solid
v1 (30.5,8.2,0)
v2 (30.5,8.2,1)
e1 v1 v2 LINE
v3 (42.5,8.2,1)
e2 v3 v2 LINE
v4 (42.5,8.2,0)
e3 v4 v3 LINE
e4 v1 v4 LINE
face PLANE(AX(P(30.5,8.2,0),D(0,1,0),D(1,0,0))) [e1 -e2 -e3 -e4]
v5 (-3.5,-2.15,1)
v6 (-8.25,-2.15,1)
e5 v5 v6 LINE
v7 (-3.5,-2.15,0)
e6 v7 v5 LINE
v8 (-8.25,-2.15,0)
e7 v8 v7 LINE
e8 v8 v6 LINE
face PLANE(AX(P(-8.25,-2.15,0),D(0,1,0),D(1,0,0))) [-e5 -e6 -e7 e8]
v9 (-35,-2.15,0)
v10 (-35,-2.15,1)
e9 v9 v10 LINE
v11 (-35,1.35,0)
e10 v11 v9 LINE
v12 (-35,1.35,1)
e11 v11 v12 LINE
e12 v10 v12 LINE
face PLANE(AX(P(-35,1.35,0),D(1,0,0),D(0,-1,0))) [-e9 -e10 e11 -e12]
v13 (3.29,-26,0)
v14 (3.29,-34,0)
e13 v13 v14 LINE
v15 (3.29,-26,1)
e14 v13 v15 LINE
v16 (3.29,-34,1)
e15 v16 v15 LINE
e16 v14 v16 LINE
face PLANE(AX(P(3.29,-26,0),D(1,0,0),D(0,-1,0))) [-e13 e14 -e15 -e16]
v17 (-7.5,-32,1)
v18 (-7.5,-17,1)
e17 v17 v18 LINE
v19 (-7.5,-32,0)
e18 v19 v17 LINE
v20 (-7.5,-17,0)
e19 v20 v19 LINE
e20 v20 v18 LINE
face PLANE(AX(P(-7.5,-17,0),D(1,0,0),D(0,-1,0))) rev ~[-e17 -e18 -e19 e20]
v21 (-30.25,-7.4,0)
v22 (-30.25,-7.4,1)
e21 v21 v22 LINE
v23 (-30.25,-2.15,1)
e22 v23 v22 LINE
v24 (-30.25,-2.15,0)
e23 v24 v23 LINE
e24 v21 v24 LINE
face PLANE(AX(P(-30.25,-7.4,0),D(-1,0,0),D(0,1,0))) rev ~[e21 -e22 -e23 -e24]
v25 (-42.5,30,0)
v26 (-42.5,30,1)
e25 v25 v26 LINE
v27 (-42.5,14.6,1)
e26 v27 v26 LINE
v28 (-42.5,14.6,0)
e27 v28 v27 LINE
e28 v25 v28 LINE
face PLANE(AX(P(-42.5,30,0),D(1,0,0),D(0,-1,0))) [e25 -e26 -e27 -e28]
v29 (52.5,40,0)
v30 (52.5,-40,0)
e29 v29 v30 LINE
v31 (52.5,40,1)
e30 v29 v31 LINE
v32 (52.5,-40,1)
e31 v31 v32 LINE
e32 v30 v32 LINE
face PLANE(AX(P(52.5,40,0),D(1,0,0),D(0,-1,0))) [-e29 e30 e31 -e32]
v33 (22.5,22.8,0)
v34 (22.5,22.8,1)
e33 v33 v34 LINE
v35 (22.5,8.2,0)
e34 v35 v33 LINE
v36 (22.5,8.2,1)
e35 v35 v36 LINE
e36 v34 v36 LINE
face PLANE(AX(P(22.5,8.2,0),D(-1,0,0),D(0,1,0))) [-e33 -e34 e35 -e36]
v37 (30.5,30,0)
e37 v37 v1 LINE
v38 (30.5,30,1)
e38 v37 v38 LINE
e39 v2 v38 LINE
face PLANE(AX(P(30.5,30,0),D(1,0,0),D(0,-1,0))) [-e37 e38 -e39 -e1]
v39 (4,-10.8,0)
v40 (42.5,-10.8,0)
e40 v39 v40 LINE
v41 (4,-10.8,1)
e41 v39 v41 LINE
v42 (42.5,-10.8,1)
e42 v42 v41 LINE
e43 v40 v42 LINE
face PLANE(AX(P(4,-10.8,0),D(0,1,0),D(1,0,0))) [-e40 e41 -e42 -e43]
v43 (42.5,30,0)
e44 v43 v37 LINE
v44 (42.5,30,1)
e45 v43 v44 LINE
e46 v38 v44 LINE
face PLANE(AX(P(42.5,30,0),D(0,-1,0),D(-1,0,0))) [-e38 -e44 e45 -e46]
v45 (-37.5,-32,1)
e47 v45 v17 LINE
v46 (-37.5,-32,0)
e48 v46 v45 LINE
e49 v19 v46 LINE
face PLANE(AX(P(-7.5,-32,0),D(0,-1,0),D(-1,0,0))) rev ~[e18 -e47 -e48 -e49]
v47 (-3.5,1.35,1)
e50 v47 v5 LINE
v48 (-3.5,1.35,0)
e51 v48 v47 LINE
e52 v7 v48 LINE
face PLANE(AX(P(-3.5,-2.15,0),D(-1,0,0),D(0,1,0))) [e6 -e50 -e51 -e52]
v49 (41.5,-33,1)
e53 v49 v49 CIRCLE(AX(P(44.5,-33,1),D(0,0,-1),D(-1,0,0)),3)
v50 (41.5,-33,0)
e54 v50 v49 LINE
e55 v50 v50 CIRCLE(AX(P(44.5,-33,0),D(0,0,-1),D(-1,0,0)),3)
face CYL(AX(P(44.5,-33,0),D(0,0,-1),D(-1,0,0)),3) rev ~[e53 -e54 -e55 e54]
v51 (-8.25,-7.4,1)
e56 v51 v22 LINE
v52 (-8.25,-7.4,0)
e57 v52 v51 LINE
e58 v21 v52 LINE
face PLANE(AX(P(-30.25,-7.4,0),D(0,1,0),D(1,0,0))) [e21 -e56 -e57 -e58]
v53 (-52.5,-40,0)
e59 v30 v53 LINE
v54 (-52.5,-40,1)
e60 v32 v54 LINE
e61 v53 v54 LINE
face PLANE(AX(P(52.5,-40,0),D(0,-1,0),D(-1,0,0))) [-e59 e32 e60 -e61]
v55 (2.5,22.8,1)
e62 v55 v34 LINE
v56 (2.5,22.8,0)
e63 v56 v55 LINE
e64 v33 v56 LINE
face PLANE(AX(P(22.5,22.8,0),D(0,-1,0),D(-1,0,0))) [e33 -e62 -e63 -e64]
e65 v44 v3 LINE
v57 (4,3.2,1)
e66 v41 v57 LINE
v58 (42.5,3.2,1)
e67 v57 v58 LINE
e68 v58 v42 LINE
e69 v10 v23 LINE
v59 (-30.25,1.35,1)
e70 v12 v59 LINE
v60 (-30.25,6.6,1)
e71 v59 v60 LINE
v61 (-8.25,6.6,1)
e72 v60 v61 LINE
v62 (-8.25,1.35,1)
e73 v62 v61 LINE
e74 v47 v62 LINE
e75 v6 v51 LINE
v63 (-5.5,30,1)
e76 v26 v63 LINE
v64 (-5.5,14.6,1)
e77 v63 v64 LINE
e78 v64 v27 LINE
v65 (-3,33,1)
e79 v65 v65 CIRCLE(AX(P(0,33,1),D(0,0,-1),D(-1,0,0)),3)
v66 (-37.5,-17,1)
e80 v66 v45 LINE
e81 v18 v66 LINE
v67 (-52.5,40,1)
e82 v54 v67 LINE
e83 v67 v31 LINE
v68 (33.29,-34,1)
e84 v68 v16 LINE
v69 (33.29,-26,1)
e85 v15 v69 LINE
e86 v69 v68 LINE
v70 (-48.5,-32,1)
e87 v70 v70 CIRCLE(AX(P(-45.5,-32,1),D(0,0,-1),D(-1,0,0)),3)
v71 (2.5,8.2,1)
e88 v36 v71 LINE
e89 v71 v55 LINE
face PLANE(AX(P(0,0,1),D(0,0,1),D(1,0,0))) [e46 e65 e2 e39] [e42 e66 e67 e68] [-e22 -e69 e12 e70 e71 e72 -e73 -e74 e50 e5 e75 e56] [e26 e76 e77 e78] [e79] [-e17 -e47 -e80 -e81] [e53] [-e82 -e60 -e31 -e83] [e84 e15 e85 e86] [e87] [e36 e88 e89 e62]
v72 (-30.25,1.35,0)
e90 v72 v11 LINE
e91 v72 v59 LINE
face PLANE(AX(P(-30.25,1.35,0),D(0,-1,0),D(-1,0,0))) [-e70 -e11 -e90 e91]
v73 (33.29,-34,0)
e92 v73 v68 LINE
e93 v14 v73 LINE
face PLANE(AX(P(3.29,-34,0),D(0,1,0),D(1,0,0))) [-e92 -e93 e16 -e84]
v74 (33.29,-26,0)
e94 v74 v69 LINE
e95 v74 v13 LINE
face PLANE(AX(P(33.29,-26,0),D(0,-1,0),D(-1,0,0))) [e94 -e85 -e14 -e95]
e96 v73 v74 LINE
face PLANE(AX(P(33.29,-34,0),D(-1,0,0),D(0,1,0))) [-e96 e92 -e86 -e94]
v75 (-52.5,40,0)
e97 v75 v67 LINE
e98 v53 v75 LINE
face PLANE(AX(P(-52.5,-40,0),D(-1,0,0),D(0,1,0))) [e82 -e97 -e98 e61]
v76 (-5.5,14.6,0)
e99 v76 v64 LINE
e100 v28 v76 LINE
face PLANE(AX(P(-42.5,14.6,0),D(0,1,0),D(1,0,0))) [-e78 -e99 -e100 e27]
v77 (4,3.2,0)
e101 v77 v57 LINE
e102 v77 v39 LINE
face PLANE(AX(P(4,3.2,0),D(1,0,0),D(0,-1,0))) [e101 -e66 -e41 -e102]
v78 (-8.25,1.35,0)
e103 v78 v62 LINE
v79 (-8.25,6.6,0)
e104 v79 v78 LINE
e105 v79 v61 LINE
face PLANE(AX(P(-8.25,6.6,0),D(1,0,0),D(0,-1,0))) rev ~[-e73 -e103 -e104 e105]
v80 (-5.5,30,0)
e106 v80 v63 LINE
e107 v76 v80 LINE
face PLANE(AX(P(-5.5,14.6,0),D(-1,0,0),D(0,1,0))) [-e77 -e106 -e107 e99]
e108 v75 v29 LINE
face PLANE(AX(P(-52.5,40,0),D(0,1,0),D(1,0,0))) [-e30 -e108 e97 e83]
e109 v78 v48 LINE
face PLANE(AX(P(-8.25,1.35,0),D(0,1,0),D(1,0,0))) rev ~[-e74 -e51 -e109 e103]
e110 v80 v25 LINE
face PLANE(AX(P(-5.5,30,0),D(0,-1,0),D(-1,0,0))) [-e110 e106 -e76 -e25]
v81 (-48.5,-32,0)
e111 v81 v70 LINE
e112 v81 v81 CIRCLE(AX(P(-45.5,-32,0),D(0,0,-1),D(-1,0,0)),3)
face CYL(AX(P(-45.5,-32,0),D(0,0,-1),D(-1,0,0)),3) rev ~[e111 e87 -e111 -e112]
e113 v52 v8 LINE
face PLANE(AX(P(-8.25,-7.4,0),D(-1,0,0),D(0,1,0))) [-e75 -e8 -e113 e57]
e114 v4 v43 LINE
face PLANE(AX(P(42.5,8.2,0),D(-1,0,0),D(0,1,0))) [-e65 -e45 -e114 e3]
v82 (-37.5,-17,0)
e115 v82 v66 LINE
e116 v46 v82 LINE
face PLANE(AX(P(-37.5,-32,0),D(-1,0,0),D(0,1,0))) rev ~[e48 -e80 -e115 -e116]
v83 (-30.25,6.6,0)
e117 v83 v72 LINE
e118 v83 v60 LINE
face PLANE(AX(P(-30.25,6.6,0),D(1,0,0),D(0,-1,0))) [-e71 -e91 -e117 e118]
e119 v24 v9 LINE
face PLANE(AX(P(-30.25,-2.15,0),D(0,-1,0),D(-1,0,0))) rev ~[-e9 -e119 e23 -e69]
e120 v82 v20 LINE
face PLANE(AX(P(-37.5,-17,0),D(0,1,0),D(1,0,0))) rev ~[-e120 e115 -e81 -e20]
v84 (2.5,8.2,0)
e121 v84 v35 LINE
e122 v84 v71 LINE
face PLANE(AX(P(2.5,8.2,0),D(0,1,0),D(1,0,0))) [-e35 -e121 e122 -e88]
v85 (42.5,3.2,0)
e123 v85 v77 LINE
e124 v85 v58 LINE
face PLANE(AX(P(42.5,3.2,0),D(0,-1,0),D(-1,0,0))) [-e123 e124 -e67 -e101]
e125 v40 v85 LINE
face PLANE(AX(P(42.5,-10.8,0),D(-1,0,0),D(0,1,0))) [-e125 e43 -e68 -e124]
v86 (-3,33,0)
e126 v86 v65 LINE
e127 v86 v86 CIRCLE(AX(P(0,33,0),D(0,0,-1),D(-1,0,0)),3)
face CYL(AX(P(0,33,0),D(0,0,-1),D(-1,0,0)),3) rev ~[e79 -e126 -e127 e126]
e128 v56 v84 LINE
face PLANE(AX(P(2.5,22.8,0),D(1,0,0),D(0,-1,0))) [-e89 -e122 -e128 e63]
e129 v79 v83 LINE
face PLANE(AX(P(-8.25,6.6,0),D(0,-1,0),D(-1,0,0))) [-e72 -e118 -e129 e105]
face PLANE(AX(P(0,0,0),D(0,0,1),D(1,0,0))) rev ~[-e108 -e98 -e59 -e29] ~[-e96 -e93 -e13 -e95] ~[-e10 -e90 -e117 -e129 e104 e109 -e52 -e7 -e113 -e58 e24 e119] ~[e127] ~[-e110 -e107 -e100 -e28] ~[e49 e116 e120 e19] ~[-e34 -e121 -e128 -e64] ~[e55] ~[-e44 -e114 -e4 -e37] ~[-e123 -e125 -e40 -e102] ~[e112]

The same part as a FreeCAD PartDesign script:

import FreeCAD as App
import Part
import Sketcher
Q = App.Units.Quantity


def add_polygon(sketch, points):
    """Adds a closed chain of lines whose ends are joined by coincident constraints."""
    first, n = sketch.GeometryCount, len(points)
    for a, b in zip(points, points[1:] + points[:1]):
        sketch.addGeometry(Part.LineSegment(App.Vector(*a, 0), App.Vector(*b, 0)), False)
    for i in range(n):
        sketch.addConstraint(Sketcher.Constraint("Coincident", first + i, 2, first + (i + 1) % n, 1))

doc = App.newDocument("Part")
params = doc.addObject("Spreadsheet::Sheet", "Params")
for row, (alias, value) in enumerate([
    ("sketch1_width", "105 mm"),
    ("sketch1_height", "80 mm"),
    ("pad1_length", "1 mm"),
    ("sketch2_width", "22 mm"),
    ("sketch2_width2", "20 mm"),
    ("sketch2_width3", "30 mm"),
    ("sketch2_height", "14 mm"),
    ("sketch2_height2", "8 mm"),
    ("pocket1_length", "10 mm"),
    ("sketch3_width", "37 mm"),
    ("sketch3_height", "15.4 mm"),
    ("pocket2_length", "10 mm"),
    ("sketch4_diameter", "6 mm"),
    ("pocket3_length", "10 mm"),
], start=1):
    params.set(f"A{row}", alias)
    params.set(f"B{row}", "=" + value)
    params.setAlias(f"B{row}", alias)

body = doc.addObject("PartDesign::Body", "Body")

# Sketch on XY plane
sketch1 = body.newObject("Sketcher::SketchObject", "Sketch")
sketch1.AttachmentSupport = (doc.getObject("XY_Plane"), [""])
sketch1.MapMode = "FlatFace"
add_polygon(sketch1, [(52.5, 40), (-52.5, 40), (-52.5, -40), (52.5, -40)])  # lines 0-3
sketch1.addConstraint(Sketcher.Constraint("Horizontal", 0))
sketch1.addConstraint(Sketcher.Constraint("Vertical", 1))
sketch1.addConstraint(Sketcher.Constraint("Horizontal", 2))
sketch1.addConstraint(Sketcher.Constraint("Vertical", 3))
sketch1.addConstraint(Sketcher.Constraint("Symmetric", 0, 2, 2, 2, -1, 1))
sketch1.addConstraint(Sketcher.Constraint("DistanceX", 0, 2, 0, 1, Q("105 mm")))
sketch1.addConstraint(Sketcher.Constraint("DistanceY", 1, 2, 1, 1, Q("80 mm")))
sketch1.setExpression("Constraints[9]", "Params.sketch1_width")
sketch1.setExpression("Constraints[10]", "Params.sketch1_height")
pad1 = body.newObject("PartDesign::Pad", "Pad")
pad1.Profile = sketch1
pad1.setExpression("Length", "Params.pad1_length")

# Sketch on XY plane
sketch2 = body.newObject("Sketcher::SketchObject", "Sketch001")
sketch2.AttachmentSupport = (doc.getObject("XY_Plane"), [""])
sketch2.MapMode = "FlatFace"
add_polygon(sketch2, [(4, 3.2), (42.5, 3.2), (42.5, -10.8), (4, -10.8)])  # lines 0-3
add_polygon(sketch2, [(-30.25, 6.6), (-8.25, 6.6), (-8.25, 1.35), (-3.5, 1.35), (-3.5, -2.15), (-8.25, -2.15), (-8.25, -7.4), (-30.25, -7.4), (-30.25, -2.15), (-35, -2.15), (-35, 1.35), (-30.25, 1.35)])  # lines 4-15
add_polygon(sketch2, [(22.5, 8.2), (2.5, 8.2), (2.5, 22.8), (22.5, 22.8)])  # lines 16-19
add_polygon(sketch2, [(33.29, -34), (3.29, -34), (3.29, -26), (33.29, -26)])  # lines 20-23
add_polygon(sketch2, [(30.5, 30), (42.5, 30), (42.5, 8.2), (30.5, 8.2)])  # lines 24-27
add_polygon(sketch2, [(-7.5, -17), (-7.5, -32), (-37.5, -32), (-37.5, -17)])  # lines 28-31
sketch2.addConstraint(Sketcher.Constraint("Horizontal", 0))
sketch2.addConstraint(Sketcher.Constraint("Vertical", 1))
sketch2.addConstraint(Sketcher.Constraint("Horizontal", 2))
sketch2.addConstraint(Sketcher.Constraint("Vertical", 3))
sketch2.addConstraint(Sketcher.Constraint("Horizontal", 4))
sketch2.addConstraint(Sketcher.Constraint("Vertical", 5))
sketch2.addConstraint(Sketcher.Constraint("Horizontal", 6))
sketch2.addConstraint(Sketcher.Constraint("Vertical", 7))
sketch2.addConstraint(Sketcher.Constraint("Horizontal", 8))
sketch2.addConstraint(Sketcher.Constraint("Vertical", 9))
sketch2.addConstraint(Sketcher.Constraint("Horizontal", 10))
sketch2.addConstraint(Sketcher.Constraint("Vertical", 11))
sketch2.addConstraint(Sketcher.Constraint("Horizontal", 12))
sketch2.addConstraint(Sketcher.Constraint("Vertical", 13))
sketch2.addConstraint(Sketcher.Constraint("Horizontal", 14))
sketch2.addConstraint(Sketcher.Constraint("Vertical", 15))
sketch2.addConstraint(Sketcher.Constraint("Horizontal", 16))
sketch2.addConstraint(Sketcher.Constraint("Vertical", 17))
sketch2.addConstraint(Sketcher.Constraint("Horizontal", 18))
sketch2.addConstraint(Sketcher.Constraint("Vertical", 19))
sketch2.addConstraint(Sketcher.Constraint("Horizontal", 20))
sketch2.addConstraint(Sketcher.Constraint("Vertical", 21))
sketch2.addConstraint(Sketcher.Constraint("Horizontal", 22))
sketch2.addConstraint(Sketcher.Constraint("Vertical", 23))
sketch2.addConstraint(Sketcher.Constraint("Horizontal", 24))
sketch2.addConstraint(Sketcher.Constraint("Vertical", 25))
sketch2.addConstraint(Sketcher.Constraint("Horizontal", 26))
sketch2.addConstraint(Sketcher.Constraint("Vertical", 27))
sketch2.addConstraint(Sketcher.Constraint("Vertical", 28))
sketch2.addConstraint(Sketcher.Constraint("Horizontal", 29))
sketch2.addConstraint(Sketcher.Constraint("Vertical", 30))
sketch2.addConstraint(Sketcher.Constraint("Horizontal", 31))
sketch2.addConstraint(Sketcher.Constraint("Horizontal", 8, 2, 11, 2))
sketch2.addConstraint(Sketcher.Constraint("Horizontal", 6, 2, 13, 2))
sketch2.addConstraint(Sketcher.Constraint("Horizontal", 19, 2, 25, 2))
sketch2.addConstraint(Sketcher.Constraint("Vertical", 5, 2, 8, 2))
sketch2.addConstraint(Sketcher.Constraint("Vertical", 11, 2, 14, 2))
sketch2.addConstraint(Sketcher.Constraint("Vertical", 1, 2, 24, 2))
sketch2.addConstraint(Sketcher.Constraint("Equal", 8, 12))
sketch2.addConstraint(Sketcher.Constraint("Equal", 22, 29))
sketch2.addConstraint(Sketcher.Constraint("Equal", 5, 9))
sketch2.addConstraint(Sketcher.Constraint("DistanceX", 4, 1, 4, 2, Q("22 mm")))
sketch2.addConstraint(Sketcher.Constraint("DistanceX", 16, 2, 16, 1, Q("20 mm")))
sketch2.addConstraint(Sketcher.Constraint("DistanceX", 20, 2, 20, 1, Q("30 mm")))
sketch2.addConstraint(Sketcher.Constraint("DistanceY", 1, 2, 1, 1, Q("14 mm")))
sketch2.addConstraint(Sketcher.Constraint("DistanceY", 21, 1, 21, 2, Q("8 mm")))
sketch2.addConstraint(Sketcher.Constraint("DistanceY", 28, 2, 28, 1, Q("15 mm")))
sketch2.addConstraint(Sketcher.Constraint("DistanceY", 7, 2, 7, 1, Q("3.5 mm")))
sketch2.addConstraint(Sketcher.Constraint("DistanceY", 17, 1, 17, 2, Q("14.6 mm")))
sketch2.addConstraint(Sketcher.Constraint("DistanceY", -1, 1, 24, 2, Q("30 mm")))
sketch2.addConstraint(Sketcher.Constraint("DistanceY", 10, 2, 4, 2, Q("14 mm")))
sketch2.addConstraint(Sketcher.Constraint("DistanceY", 3, 2, 16, 2, Q("5 mm")))
sketch2.addConstraint(Sketcher.Constraint("DistanceX", 18, 2, 0, 2, Q("20 mm")))
sketch2.addConstraint(Sketcher.Constraint("DistanceX", 19, 2, 26, 2, Q("8 mm")))
sketch2.addConstraint(Sketcher.Constraint("DistanceX", 6, 2, -1, 1, Q("3.5 mm")))
sketch2.addConstraint(Sketcher.Constraint("DistanceX", 28, 2, -1, 1, Q("7.5 mm")))
sketch2.addConstraint(Sketcher.Constraint("DistanceX", 6, 2, 3, 2, Q("7.5 mm")))
sketch2.addConstraint(Sketcher.Constraint("DistanceX", 0, 1, 0, 2, Q("38.5 mm")))
sketch2.addConstraint(Sketcher.Constraint("DistanceY", 25, 2, 25, 1, Q("21.8 mm")))
sketch2.addConstraint(Sketcher.Constraint("DistanceX", 12, 2, -1, 1, Q("35 mm")))
sketch2.addConstraint(Sketcher.Constraint("DistanceY", 20, 2, -1, 1, Q("34 mm")))
sketch2.addConstraint(Sketcher.Constraint("DistanceY", 28, 2, -1, 1, Q("32 mm")))
sketch2.addConstraint(Sketcher.Constraint("DistanceY", -1, 1, 4, 2, Q("6.6 mm")))
sketch2.addConstraint(Sketcher.Constraint("DistanceX", -1, 1, 20, 2, Q("3.29 mm")))
sketch2.setExpression("Constraints[73]", "Params.sketch2_width")
sketch2.setExpression("Constraints[74]", "Params.sketch2_width2")
sketch2.setExpression("Constraints[75]", "Params.sketch2_width3")
sketch2.setExpression("Constraints[76]", "Params.sketch2_height")
sketch2.setExpression("Constraints[77]", "Params.sketch2_height2")
pocket1 = body.newObject("PartDesign::Pocket", "Pocket")
pocket1.Profile = sketch2
pocket1.setExpression("Length", "Params.pocket1_length")
pocket1.Reversed = True

# Sketch on XY plane
sketch3 = body.newObject("Sketcher::SketchObject", "Sketch002")
sketch3.AttachmentSupport = (doc.getObject("XY_Plane"), [""])
sketch3.MapMode = "FlatFace"
add_polygon(sketch3, [(-5.5, 14.6), (-42.5, 14.6), (-42.5, 30), (-5.5, 30)])  # lines 0-3
sketch3.addConstraint(Sketcher.Constraint("Horizontal", 0))
sketch3.addConstraint(Sketcher.Constraint("Vertical", 1))
sketch3.addConstraint(Sketcher.Constraint("Horizontal", 2))
sketch3.addConstraint(Sketcher.Constraint("Vertical", 3))
sketch3.addConstraint(Sketcher.Constraint("DistanceX", 0, 2, 0, 1, Q("37 mm")))
sketch3.addConstraint(Sketcher.Constraint("DistanceY", 1, 1, 1, 2, Q("15.4 mm")))
sketch3.addConstraint(Sketcher.Constraint("DistanceY", -1, 1, 1, 2, Q("30 mm")))
sketch3.addConstraint(Sketcher.Constraint("DistanceX", 0, 2, -1, 1, Q("42.5 mm")))
sketch3.setExpression("Constraints[8]", "Params.sketch3_width")
sketch3.setExpression("Constraints[9]", "Params.sketch3_height")
pocket2 = body.newObject("PartDesign::Pocket", "Pocket001")
pocket2.Profile = sketch3
pocket2.setExpression("Length", "Params.pocket2_length")
pocket2.Reversed = True

# Sketch on XY plane
sketch4 = body.newObject("Sketcher::SketchObject", "Sketch003")
sketch4.AttachmentSupport = (doc.getObject("XY_Plane"), [""])
sketch4.MapMode = "FlatFace"
sketch4.addGeometry(Part.Circle(App.Vector(-45.5, -32, 0), App.Vector(0, 0, 1), 3), False)
sketch4.addGeometry(Part.Circle(App.Vector(44.5, -33, 0), App.Vector(0, 0, 1), 3), False)
sketch4.addGeometry(Part.Circle(App.Vector(0, 33, 0), App.Vector(0, 0, 1), 3), False)
sketch4.addConstraint(Sketcher.Constraint("Equal", 0, 1))
sketch4.addConstraint(Sketcher.Constraint("Equal", 1, 2))
sketch4.addConstraint(Sketcher.Constraint("PointOnObject", 2, 3, -2))
sketch4.addConstraint(Sketcher.Constraint("Diameter", 0, Q("6 mm")))
sketch4.addConstraint(Sketcher.Constraint("DistanceY", 0, 3, -1, 1, Q("32 mm")))
sketch4.addConstraint(Sketcher.Constraint("DistanceY", 1, 3, -1, 1, Q("33 mm")))
sketch4.addConstraint(Sketcher.Constraint("DistanceY", -1, 1, 2, 3, Q("33 mm")))
sketch4.addConstraint(Sketcher.Constraint("DistanceX", 0, 3, 1, 3, Q("90 mm")))
sketch4.addConstraint(Sketcher.Constraint("DistanceX", 0, 3, -1, 1, Q("45.5 mm")))
sketch4.setExpression("Constraints[3]", "Params.sketch4_diameter")
pocket3 = body.newObject("PartDesign::Pocket", "Pocket002")
pocket3.Profile = sketch4
pocket3.setExpression("Length", "Params.pocket3_length")
pocket3.Reversed = True

doc.recompute()
